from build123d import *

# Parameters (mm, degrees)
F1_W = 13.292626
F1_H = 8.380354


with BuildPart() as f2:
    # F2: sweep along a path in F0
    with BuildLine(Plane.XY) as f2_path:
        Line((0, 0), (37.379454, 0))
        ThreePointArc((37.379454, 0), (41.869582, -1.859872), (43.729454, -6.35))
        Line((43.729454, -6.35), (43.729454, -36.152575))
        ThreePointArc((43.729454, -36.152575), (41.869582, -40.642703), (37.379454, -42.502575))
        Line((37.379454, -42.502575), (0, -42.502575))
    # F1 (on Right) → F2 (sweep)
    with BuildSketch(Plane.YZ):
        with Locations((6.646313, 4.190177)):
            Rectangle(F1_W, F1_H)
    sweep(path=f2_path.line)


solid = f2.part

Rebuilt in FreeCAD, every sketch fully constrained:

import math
import FreeCAD as App
import Part
import Sketcher
Q = App.Units.Quantity


def add_polygon(sketch, points):
    """Adds a closed chain of lines whose ends are joined by coincident constraints."""
    first, n = sketch.GeometryCount, len(points)
    for a, b in zip(points, points[1:] + points[:1]):
        sketch.addGeometry(Part.LineSegment(App.Vector(*a, 0), App.Vector(*b, 0)), False)
    for i in range(n):
        sketch.addConstraint(Sketcher.Constraint("Coincident", first + i, 2, first + (i + 1) % n, 1))

doc = App.newDocument("Part")
params = doc.addObject("Spreadsheet::Sheet", "Params")
for row, (alias, value) in enumerate([
    ("sketch2_radius", "0.25 in"),
], start=1):
    params.set(f"A{row}", alias)
    params.set(f"B{row}", "=" + value)
    params.setAlias(f"B{row}", alias)

body = doc.addObject("PartDesign::Body", "Body")

sketch1 = body.newObject("Sketcher::SketchObject", "Sketch")
sketch1.AttachmentSupport = (doc.getObject("YZ_Plane"), [""])
sketch1.MapMode = "FlatFace"
add_polygon(sketch1, [(0, 8.380354), (0, 0), (13.292626, 0), (13.292626, 8.380354)])
sketch1.addConstraint(Sketcher.Constraint("Vertical", 0))
sketch1.addConstraint(Sketcher.Constraint("Horizontal", 1))
sketch1.addConstraint(Sketcher.Constraint("Vertical", 2))
sketch1.addConstraint(Sketcher.Constraint("Horizontal", 3))
sketch1.addConstraint(Sketcher.Constraint("Coincident", 0, 2, -1, 1))
sketch1.addConstraint(Sketcher.Constraint("DistanceX", 1, 1, 1, 2, Q("13.292626 mm")))
sketch1.addConstraint(Sketcher.Constraint("DistanceY", 0, 2, 0, 1, Q("8.380354 mm")))

sketch2 = body.newObject("Sketcher::SketchObject", "Sketch001")
sketch2.AttachmentSupport = (doc.getObject("XY_Plane"), [""])
sketch2.MapMode = "FlatFace"
sketch2.addGeometry(Part.LineSegment(App.Vector(0, 0, 0), App.Vector(37.379454, 0, 0)), False)
sketch2.addGeometry(Part.ArcOfCircle(Part.Circle(App.Vector(37.379454, -6.35, 0), App.Vector(0, 0, 1), 6.35), math.radians(0.000002), math.radians(89.999998)), False)
sketch2.addGeometry(Part.LineSegment(App.Vector(43.729454, -6.35, 0), App.Vector(43.729454, -36.152575, 0)), False)
sketch2.addGeometry(Part.ArcOfCircle(Part.Circle(App.Vector(37.379454, -36.152575, 0), App.Vector(0, 0, 1), 6.35), math.radians(-89.999998), math.radians(-0.000002)), False)
sketch2.addGeometry(Part.LineSegment(App.Vector(37.379454, -42.502575, 0), App.Vector(0, -42.502575, 0)), False)
sketch2.addConstraint(Sketcher.Constraint("Tangent", 0, 2, 1, 2))
sketch2.addConstraint(Sketcher.Constraint("Tangent", 1, 1, 2, 1))
sketch2.addConstraint(Sketcher.Constraint("Tangent", 2, 2, 3, 2))
sketch2.addConstraint(Sketcher.Constraint("Tangent", 3, 1, 4, 1))
sketch2.addConstraint(Sketcher.Constraint("Horizontal", 0))
sketch2.addConstraint(Sketcher.Constraint("Vertical", 2))
sketch2.addConstraint(Sketcher.Constraint("Horizontal", 4))
sketch2.addConstraint(Sketcher.Constraint("Coincident", 0, 1, -1, 1))
sketch2.addConstraint(Sketcher.Constraint("Equal", 1, 3))
sketch2.addConstraint(Sketcher.Constraint("PointOnObject", 4, 2, -2))
sketch2.addConstraint(Sketcher.Constraint("Radius", 1, Q("0.25 in")))
sketch2.addConstraint(Sketcher.Constraint("DistanceX", 0, 1, 0, 2, Q("37.379454 mm")))
sketch2.addConstraint(Sketcher.Constraint("DistanceY", 2, 2, 2, 1, Q("29.802575 mm")))
sketch2.setExpression("Constraints[10]", "Params.sketch2_radius")
doc.recompute()

additivepipe = body.newObject("PartDesign::AdditivePipe", "AdditivePipe")
additivepipe.Profile = sketch1
additivepipe.Spine = (sketch2, ["Edge1", "Edge2", "Edge3", "Edge4", "Edge5"])

doc.recompute()
